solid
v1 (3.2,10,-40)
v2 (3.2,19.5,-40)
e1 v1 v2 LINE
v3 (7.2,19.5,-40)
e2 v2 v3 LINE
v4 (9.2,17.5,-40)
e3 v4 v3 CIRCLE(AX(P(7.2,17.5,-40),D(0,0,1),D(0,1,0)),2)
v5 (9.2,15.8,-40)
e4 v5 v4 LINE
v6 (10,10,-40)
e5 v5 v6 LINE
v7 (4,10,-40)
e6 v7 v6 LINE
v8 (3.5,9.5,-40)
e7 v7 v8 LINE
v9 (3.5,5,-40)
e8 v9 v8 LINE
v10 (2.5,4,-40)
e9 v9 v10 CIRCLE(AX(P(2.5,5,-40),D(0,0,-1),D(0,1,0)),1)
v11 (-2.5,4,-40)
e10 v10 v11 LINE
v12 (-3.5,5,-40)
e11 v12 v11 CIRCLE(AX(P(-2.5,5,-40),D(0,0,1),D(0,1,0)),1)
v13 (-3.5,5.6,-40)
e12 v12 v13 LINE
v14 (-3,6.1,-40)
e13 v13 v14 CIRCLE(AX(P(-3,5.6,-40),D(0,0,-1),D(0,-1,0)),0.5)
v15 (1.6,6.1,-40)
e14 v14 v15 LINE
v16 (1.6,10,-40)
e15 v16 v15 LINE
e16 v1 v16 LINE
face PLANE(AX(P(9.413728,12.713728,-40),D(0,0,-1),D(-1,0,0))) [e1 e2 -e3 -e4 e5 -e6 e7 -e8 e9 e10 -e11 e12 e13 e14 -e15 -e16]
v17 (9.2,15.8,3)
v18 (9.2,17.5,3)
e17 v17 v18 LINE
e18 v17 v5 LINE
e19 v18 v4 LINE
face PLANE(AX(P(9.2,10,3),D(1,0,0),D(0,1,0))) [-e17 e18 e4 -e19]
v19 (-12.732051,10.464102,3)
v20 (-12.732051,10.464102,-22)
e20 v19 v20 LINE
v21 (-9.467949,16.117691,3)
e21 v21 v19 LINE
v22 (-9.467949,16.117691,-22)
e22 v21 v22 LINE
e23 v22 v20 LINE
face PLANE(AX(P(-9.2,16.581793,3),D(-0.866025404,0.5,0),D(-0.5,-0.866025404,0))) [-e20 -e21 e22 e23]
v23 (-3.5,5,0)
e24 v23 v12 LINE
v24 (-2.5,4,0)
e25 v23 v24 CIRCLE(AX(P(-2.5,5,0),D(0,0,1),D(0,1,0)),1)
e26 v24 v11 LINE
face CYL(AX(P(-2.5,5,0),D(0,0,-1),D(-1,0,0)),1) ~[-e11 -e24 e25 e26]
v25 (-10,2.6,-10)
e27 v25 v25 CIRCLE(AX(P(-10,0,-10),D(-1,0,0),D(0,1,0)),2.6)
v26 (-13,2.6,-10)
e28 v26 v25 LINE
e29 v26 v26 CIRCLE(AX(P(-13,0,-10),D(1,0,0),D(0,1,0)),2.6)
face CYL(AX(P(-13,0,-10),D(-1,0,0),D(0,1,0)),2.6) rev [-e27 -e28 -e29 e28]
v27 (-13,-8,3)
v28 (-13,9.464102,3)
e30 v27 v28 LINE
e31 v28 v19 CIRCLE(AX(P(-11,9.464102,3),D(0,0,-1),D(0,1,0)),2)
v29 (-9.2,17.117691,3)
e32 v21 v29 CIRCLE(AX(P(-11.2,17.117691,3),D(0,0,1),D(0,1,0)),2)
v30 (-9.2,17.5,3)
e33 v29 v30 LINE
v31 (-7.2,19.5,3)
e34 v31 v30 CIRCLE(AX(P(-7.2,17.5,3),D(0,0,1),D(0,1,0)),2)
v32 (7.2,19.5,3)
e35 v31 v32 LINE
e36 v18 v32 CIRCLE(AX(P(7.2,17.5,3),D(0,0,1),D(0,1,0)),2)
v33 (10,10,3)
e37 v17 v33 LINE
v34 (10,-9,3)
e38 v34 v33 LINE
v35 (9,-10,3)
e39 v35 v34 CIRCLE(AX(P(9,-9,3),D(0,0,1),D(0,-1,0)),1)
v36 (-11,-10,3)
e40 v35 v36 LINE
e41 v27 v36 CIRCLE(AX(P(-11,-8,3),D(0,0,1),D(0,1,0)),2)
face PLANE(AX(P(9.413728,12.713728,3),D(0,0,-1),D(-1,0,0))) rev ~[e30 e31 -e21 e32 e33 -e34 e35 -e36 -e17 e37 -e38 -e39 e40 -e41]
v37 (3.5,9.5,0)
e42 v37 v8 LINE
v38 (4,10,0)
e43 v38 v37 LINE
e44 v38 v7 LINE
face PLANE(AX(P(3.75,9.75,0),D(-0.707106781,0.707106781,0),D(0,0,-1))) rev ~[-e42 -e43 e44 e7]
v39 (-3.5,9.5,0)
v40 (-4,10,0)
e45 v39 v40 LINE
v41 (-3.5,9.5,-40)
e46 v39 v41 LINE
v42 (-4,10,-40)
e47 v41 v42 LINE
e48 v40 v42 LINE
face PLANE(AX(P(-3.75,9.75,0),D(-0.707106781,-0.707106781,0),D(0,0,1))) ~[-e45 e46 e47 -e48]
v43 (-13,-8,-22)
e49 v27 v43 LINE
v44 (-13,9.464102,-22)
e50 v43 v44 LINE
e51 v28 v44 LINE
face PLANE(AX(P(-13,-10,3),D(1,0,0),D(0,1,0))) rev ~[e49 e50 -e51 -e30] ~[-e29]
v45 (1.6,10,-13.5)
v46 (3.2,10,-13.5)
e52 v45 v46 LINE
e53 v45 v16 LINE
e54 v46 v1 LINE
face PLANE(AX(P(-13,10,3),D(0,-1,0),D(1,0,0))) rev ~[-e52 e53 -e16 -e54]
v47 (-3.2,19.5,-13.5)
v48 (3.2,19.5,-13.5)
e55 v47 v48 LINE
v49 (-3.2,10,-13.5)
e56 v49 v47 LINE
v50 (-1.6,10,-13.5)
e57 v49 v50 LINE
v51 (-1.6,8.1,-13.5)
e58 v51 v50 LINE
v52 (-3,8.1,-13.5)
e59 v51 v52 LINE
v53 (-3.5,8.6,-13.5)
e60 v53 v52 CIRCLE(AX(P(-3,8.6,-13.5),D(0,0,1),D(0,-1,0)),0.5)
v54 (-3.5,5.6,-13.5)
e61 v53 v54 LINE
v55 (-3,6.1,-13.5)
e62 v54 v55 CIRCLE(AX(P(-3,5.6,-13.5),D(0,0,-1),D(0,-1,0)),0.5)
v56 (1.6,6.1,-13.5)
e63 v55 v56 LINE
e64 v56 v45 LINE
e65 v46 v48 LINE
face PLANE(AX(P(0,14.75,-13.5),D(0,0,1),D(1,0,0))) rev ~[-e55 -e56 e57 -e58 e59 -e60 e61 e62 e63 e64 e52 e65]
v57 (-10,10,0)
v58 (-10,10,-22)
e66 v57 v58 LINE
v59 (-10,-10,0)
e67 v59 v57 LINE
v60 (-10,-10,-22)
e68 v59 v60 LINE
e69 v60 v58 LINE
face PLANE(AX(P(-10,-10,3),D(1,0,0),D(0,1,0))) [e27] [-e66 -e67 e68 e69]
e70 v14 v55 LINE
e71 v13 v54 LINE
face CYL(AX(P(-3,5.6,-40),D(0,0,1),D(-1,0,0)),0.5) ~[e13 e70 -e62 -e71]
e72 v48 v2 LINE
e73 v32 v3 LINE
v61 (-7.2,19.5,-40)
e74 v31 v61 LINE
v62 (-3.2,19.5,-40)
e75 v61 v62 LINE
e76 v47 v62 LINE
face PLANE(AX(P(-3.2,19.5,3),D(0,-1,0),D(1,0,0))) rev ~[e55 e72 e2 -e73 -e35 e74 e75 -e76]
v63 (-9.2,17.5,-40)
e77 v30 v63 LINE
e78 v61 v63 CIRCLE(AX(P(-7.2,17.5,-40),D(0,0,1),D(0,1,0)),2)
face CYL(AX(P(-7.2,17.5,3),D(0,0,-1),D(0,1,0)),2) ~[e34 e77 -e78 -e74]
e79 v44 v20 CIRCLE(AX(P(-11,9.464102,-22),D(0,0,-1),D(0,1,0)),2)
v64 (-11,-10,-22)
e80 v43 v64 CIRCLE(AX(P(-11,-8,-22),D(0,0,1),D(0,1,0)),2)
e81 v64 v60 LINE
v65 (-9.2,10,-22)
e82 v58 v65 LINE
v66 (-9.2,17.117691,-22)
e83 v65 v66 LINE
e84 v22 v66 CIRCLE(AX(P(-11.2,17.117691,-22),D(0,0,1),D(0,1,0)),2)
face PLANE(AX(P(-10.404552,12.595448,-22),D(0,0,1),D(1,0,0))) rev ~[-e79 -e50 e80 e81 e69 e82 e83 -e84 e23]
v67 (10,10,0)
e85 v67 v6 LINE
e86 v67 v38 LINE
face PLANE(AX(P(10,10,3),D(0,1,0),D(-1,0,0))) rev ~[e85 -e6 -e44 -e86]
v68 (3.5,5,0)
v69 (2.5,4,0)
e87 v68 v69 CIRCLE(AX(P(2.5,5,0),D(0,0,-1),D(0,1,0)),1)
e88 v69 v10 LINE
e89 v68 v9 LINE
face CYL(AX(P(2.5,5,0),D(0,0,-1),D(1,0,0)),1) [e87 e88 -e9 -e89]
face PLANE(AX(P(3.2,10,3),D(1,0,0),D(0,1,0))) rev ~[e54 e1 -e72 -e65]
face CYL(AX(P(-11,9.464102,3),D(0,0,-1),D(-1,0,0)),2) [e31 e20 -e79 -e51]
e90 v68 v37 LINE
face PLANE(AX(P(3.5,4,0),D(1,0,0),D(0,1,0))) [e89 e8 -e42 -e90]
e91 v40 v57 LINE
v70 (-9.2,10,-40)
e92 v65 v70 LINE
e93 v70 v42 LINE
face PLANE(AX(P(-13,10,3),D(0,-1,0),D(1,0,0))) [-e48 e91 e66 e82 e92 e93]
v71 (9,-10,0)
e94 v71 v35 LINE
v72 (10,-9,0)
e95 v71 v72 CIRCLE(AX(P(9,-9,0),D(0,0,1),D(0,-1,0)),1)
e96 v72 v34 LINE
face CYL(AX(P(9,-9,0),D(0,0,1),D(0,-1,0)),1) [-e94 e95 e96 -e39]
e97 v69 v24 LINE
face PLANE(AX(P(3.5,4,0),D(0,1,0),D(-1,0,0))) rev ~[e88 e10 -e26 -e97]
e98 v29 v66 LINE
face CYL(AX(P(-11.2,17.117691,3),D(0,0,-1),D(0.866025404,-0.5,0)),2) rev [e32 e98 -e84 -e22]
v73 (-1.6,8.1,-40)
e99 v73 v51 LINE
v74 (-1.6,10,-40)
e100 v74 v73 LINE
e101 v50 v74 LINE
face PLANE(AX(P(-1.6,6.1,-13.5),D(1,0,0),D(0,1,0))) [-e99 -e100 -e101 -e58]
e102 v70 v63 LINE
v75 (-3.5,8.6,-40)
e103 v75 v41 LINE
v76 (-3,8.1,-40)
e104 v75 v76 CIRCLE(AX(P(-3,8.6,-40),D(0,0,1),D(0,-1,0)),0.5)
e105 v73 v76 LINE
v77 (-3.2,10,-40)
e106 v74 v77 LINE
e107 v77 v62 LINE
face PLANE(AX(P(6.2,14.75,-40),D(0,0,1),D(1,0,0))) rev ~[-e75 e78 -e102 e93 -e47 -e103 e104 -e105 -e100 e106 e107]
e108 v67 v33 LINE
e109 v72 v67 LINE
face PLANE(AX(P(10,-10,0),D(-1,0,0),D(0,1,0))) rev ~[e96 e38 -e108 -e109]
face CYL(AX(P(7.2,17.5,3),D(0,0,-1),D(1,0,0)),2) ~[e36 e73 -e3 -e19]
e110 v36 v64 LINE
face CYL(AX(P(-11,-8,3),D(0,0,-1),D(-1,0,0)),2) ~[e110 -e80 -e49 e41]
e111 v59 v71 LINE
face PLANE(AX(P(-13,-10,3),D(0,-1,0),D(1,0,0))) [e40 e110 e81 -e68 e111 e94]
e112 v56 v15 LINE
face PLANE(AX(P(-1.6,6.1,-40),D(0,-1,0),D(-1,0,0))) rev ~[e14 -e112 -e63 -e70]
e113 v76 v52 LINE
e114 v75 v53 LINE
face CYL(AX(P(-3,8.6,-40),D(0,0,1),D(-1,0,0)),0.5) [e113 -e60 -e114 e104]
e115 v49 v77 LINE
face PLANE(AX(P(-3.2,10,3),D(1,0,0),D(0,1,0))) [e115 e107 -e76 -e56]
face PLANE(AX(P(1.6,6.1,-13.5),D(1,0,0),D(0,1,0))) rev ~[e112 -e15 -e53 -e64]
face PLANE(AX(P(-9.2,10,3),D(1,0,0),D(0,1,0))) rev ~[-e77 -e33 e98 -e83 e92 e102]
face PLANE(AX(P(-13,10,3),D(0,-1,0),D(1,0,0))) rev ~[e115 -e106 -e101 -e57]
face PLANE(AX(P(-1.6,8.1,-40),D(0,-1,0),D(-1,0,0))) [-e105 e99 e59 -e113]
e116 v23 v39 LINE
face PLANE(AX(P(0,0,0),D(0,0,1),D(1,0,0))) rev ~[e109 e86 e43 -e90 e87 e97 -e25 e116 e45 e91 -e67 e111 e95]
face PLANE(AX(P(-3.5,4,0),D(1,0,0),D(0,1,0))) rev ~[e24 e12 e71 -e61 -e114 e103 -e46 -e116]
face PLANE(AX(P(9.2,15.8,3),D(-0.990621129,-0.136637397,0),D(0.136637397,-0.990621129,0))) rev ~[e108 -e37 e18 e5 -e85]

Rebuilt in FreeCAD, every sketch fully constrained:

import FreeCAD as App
import Part
import Sketcher
Q = App.Units.Quantity


def edges_at(feature, points):
    """Names of the edges that pass closest to the given points."""
    edges = feature.Shape.Edges
    near = lambda p: min(range(len(edges)), key=lambda i: edges[i].distToShape(Part.Vertex(*p))[0])
    return sorted({f"Edge{near(p) + 1}" for p in points})


def add_polygon(sketch, points):
    """Adds a closed chain of lines whose ends are joined by coincident constraints."""
    first, n = sketch.GeometryCount, len(points)
    for a, b in zip(points, points[1:] + points[:1]):
        sketch.addGeometry(Part.LineSegment(App.Vector(*a, 0), App.Vector(*b, 0)), False)
    for i in range(n):
        sketch.addConstraint(Sketcher.Constraint("Coincident", first + i, 2, first + (i + 1) % n, 1))

doc = App.newDocument("Part")
body = doc.addObject("PartDesign::Body", "Body")

sketch1 = body.newObject("Sketcher::SketchObject", "Sketch")
sketch1.AttachmentSupport = (doc.getObject("XY_Plane"), [""])
sketch1.MapMode = "FlatFace"
add_polygon(sketch1, [(-10, 10), (-10, -10), (10, -10), (10, 10)])
sketch1.addConstraint([
    Sketcher.Constraint("Vertical", 0),
    Sketcher.Constraint("Horizontal", 1),
    Sketcher.Constraint("Vertical", 2),
    Sketcher.Constraint("Horizontal", 3),
    Sketcher.Constraint("Symmetric", 0, 2, 2, 2, -1, 1),
    Sketcher.Constraint("Equal", 3, 0),
    Sketcher.Constraint("DistanceX", 1, 1, 1, 2, Q("20 mm")),
])
pad1 = body.newObject("PartDesign::Pad", "Pad")
pad1.Profile = sketch1
pad1.Length = 3

sketch2 = body.newObject("Sketcher::SketchObject", "Sketch001")
sketch2.AttachmentSupport = (doc.getObject("XY_Plane"), [""])
sketch2.MapMode = "FlatFace"
add_polygon(sketch2, [(4, 10), (4, 4), (-4, 4), (-4, 10)])
sketch2.addConstraint([
    Sketcher.Constraint("Vertical", 0),
    Sketcher.Constraint("Horizontal", 1),
    Sketcher.Constraint("Vertical", 2),
    Sketcher.Constraint("Horizontal", 3),
    Sketcher.Constraint("DistanceX", 1, 2, 1, 1, Q("7 mm")),
    Sketcher.Constraint("DistanceY", 0, 2, 0, 1, Q("6 mm")),
    Sketcher.Constraint("DistanceY", -1, 1, 0, 2, Q("4 mm")),
    Sketcher.Constraint("DistanceX", -1, 1, 0, 2, Q("3.5 mm")),
])
pad2 = body.newObject("PartDesign::Pad", "Pad001")
pad2.Profile = sketch2
pad2.Length = 40
pad2.Reversed = True

sketch3 = body.newObject("Sketcher::SketchObject", "Sketch002")
sketch3.AttachmentSupport = (doc.getObject("XY_Plane"), [""])
sketch3.MapMode = "FlatFace"
sketch3.AttachmentOffset = App.Placement(App.Vector(0, 0, 3), App.Rotation())
add_polygon(sketch3, [(-13, 10), (-13, -10), (-10, -10), (-10, 10)])
sketch3.addConstraint([
    Sketcher.Constraint("Vertical", 0),
    Sketcher.Constraint("Horizontal", 1),
    Sketcher.Constraint("Vertical", 2),
    Sketcher.Constraint("Horizontal", 3),
    Sketcher.Constraint("DistanceX", 1, 1, 1, 2, Q("3 mm")),
    Sketcher.Constraint("DistanceY", 0, 2, 0, 1, Q("20 mm")),
    Sketcher.Constraint("DistanceX", 0, 2, -1, 1, Q("13 mm")),
    Sketcher.Constraint("DistanceY", 0, 2, -1, 1, Q("10 mm")),
])
pad3 = body.newObject("PartDesign::Pad", "Pad002")
pad3.Profile = sketch3
pad3.Length = 25
pad3.Reversed = True

sketch4 = body.newObject("Sketcher::SketchObject", "Sketch003")
sketch4.AttachmentSupport = (doc.getObject("YZ_Plane"), [""])
sketch4.MapMode = "FlatFace"
sketch4.AttachmentOffset = App.Placement(App.Vector(0, 0, -13), App.Rotation())
sketch4.addGeometry(Part.Circle(App.Vector(0, -10, 0), App.Vector(0, 0, 1), 2.6), False)
sketch4.addConstraint([
    Sketcher.Constraint("PointOnObject", 0, 3, -2),
    Sketcher.Constraint("Diameter", 0, Q("5.2 mm")),
    Sketcher.Constraint("DistanceY", 0, 3, -1, 1, Q("10 mm")),
])
pocket1 = body.newObject("PartDesign::Pocket", "Pocket")
pocket1.Profile = sketch4
pocket1.Type = "UpToFirst"
pocket1.Reversed = True
doc.recompute()

fillet = body.newObject("PartDesign::Fillet", "Fillet")
fillet.Base = (pocket1, edges_at(pocket1, [(10, -10, 1.5)]))
fillet.Radius = 1

sketch5 = body.newObject("Sketcher::SketchObject", "Sketch004")
sketch5.AttachmentSupport = (doc.getObject("XY_Plane"), [""])
sketch5.MapMode = "FlatFace"
sketch5.AttachmentOffset = App.Placement(App.Vector(0, 0, -13.5), App.Rotation())
add_polygon(sketch5, [(1.6, 10), (1.6, 6.1), (-1.6, 6.1), (-1.6, 10)])
sketch5.addConstraint([
    Sketcher.Constraint("Vertical", 0),
    Sketcher.Constraint("Horizontal", 1),
    Sketcher.Constraint("Vertical", 2),
    Sketcher.Constraint("Horizontal", 3),
    Sketcher.Constraint("DistanceX", 1, 2, 1, 1, Q("3.2 mm")),
    Sketcher.Constraint("DistanceY", 0, 2, 0, 1, Q("3.9 mm")),
    Sketcher.Constraint("DistanceY", -1, 1, 2, 2, Q("10 mm")),
    Sketcher.Constraint("DistanceX", -1, 1, 0, 2, Q("1.6 mm")),
])
pocket2 = body.newObject("PartDesign::Pocket", "Pocket001")
pocket2.Profile = sketch5
pocket2.Length = 30

sketch6 = body.newObject("Sketcher::SketchObject", "Sketch005")
sketch6.AttachmentSupport = (doc.getObject("XY_Plane"), [""])
sketch6.MapMode = "FlatFace"
sketch6.AttachmentOffset = App.Placement(App.Vector(0, 0, 3), App.Rotation())
add_polygon(sketch6, [(3, 20), (3, 10), (9, 10), (9, 20)])
add_polygon(sketch6, [(-9, 20), (-9, 10), (-3, 10), (-3, 20)])
sketch6.addConstraint([
    Sketcher.Constraint("Vertical", 0),
    Sketcher.Constraint("Horizontal", 1),
    Sketcher.Constraint("Vertical", 2),
    Sketcher.Constraint("Horizontal", 3),
    Sketcher.Constraint("Vertical", 4),
    Sketcher.Constraint("Horizontal", 5),
    Sketcher.Constraint("Vertical", 6),
    Sketcher.Constraint("Horizontal", 7),
    Sketcher.Constraint("Symmetric", 1, 2, 4, 2, -2),
    Sketcher.Constraint("Symmetric", 3, 2, 6, 2, -2),
    Sketcher.Constraint("DistanceX", 1, 1, 1, 2, Q("6 mm")),
    Sketcher.Constraint("DistanceY", 0, 2, 0, 1, Q("9.5 mm")),
    Sketcher.Constraint("DistanceY", -1, 1, 0, 2, Q("10 mm")),
    Sketcher.Constraint("DistanceX", -1, 1, 0, 2, Q("3.2 mm")),
])
pad4 = body.newObject("PartDesign::Pad", "Pad003")
pad4.Profile = sketch6
pad4.Length = 43
pad4.Reversed = True
doc.recompute()

chamfer = body.newObject("PartDesign::Chamfer", "Chamfer")
chamfer.Base = (pad4, edges_at(pad4, [(-3.5, 10, -20), (3.5, 10, -20)]))
chamfer.Size = 0.5

sketch7 = body.newObject("Sketcher::SketchObject", "Sketch006")
sketch7.AttachmentSupport = (doc.getObject("XY_Plane"), [""])
sketch7.MapMode = "FlatFace"
sketch7.AttachmentOffset = App.Placement(App.Vector(0, 0, 3), App.Rotation())
add_polygon(sketch7, [(-3, 20), (-3, 10), (3, 10), (3, 20)])
sketch7.addConstraint([
    Sketcher.Constraint("Vertical", 0),
    Sketcher.Constraint("Horizontal", 1),
    Sketcher.Constraint("Vertical", 2),
    Sketcher.Constraint("Horizontal", 3),
    Sketcher.Constraint("DistanceX", 1, 1, 1, 2, Q("6.4 mm")),
    Sketcher.Constraint("DistanceY", 0, 2, 0, 1, Q("9.5 mm")),
    Sketcher.Constraint("DistanceY", -1, 1, 0, 2, Q("10 mm")),
    Sketcher.Constraint("DistanceX", 0, 2, -1, 1, Q("3.2 mm")),
])
pad5 = body.newObject("PartDesign::Pad", "Pad004")
pad5.Profile = sketch7
pad5.Length = 16.5
pad5.Reversed = True

sketch8 = body.newObject("Sketcher::SketchObject", "Sketch007")
sketch8.AttachmentSupport = (doc.getObject("XY_Plane"), [""])
sketch8.MapMode = "FlatFace"
sketch8.AttachmentOffset = App.Placement(App.Vector(0, 0, 3), App.Rotation())
add_polygon(sketch8, [(-13, 10), (-9.2, 10), (-9.2, 16.6)])
sketch8.addConstraint([
    Sketcher.Constraint("Horizontal", 0),
    Sketcher.Constraint("Vertical", 1),
    Sketcher.Constraint("Angle", 2, Q("-120 deg")),
    Sketcher.Constraint("DistanceX", 0, 1, 0, 2, Q("3.8 mm")),
    Sketcher.Constraint("DistanceY", -1, 1, 0, 2, Q("10 mm")),
    Sketcher.Constraint("DistanceX", 2, 2, -1, 1, Q("13 mm")),
])
pad6 = body.newObject("PartDesign::Pad", "Pad005")
pad6.Profile = sketch8
pad6.Length = 25
pad6.Reversed = True
doc.recompute()

fillet2 = body.newObject("PartDesign::Fillet", "Fillet001")
fillet2.Base = (pad6, edges_at(pad6, [
    (-9.2, 16.582, -9.5),
    (-13, -10, -9.5),
    (-13, 10, -9.5),
    (9.2, 19.5, -18.5),
    (-9.2, 19.5, -18.5),
]))
fillet2.Radius = 2

sketch9 = body.newObject("Sketcher::SketchObject", "Sketch008")
sketch9.AttachmentSupport = (doc.getObject("XY_Plane"), [""])
sketch9.MapMode = "FlatFace"
sketch9.AttachmentOffset = App.Placement(App.Vector(0, 0, -40), App.Rotation())
add_polygon(sketch9, [(-1.6, 8.1), (-1.6, 6.1), (-3.5, 6.1), (-3.5, 8.1)])
sketch9.addConstraint([
    Sketcher.Constraint("Vertical", 0),
    Sketcher.Constraint("Horizontal", 1),
    Sketcher.Constraint("Vertical", 2),
    Sketcher.Constraint("Horizontal", 3),
    Sketcher.Constraint("DistanceY", 0, 2, 0, 1, Q("2 mm")),
    Sketcher.Constraint("DistanceX", 1, 2, 1, 1, Q("1.9 mm")),
    Sketcher.Constraint("DistanceX", 0, 2, -1, 1, Q("1.6 mm")),
    Sketcher.Constraint("DistanceY", -1, 1, 0, 2, Q("6.1 mm")),
])
pocket3 = body.newObject("PartDesign::Pocket", "Pocket002")
pocket3.Profile = sketch9
pocket3.Length = 26.5
pocket3.Reversed = True
doc.recompute()

fillet3 = body.newObject("PartDesign::Fillet", "Fillet002")
fillet3.Base = (pocket3, edges_at(pocket3, [(-3.5, 6.1, -26.75), (-3.5, 8.1, -26.75)]))
fillet3.Radius = 0.5
doc.recompute()

fillet4 = body.newObject("PartDesign::Fillet", "Fillet003")
fillet4.Base = (fillet3, edges_at(fillet3, [(-3.5, 4, -20), (3.5, 4, -20)]))
fillet4.Radius = 1

sketch10 = body.newObject("Sketcher::SketchObject", "Sketch009")
sketch10.AttachmentSupport = (doc.getObject("XY_Plane"), [""])
sketch10.MapMode = "FlatFace"
sketch10.AttachmentOffset = App.Placement(App.Vector(0, 0, 3), App.Rotation())
add_polygon(sketch10, [(9.2, 10), (10, 10), (9.2, 15.8)])
sketch10.addConstraint([
    Sketcher.Constraint("Horizontal", 0),
    Sketcher.Constraint("Vertical", 2),
    Sketcher.Constraint("DistanceX", 0, 1, 0, 2, Q("0.8 mm")),
    Sketcher.Constraint("DistanceY", 2, 2, 2, 1, Q("5.8 mm")),
    Sketcher.Constraint("DistanceX", -1, 1, 0, 2, Q("10 mm")),
    Sketcher.Constraint("DistanceY", -1, 1, 0, 2, Q("10 mm")),
])
pad7 = body.newObject("PartDesign::Pad", "Pad006")
pad7.Profile = sketch10
pad7.Length = 43
pad7.Reversed = True

doc.recompute()
